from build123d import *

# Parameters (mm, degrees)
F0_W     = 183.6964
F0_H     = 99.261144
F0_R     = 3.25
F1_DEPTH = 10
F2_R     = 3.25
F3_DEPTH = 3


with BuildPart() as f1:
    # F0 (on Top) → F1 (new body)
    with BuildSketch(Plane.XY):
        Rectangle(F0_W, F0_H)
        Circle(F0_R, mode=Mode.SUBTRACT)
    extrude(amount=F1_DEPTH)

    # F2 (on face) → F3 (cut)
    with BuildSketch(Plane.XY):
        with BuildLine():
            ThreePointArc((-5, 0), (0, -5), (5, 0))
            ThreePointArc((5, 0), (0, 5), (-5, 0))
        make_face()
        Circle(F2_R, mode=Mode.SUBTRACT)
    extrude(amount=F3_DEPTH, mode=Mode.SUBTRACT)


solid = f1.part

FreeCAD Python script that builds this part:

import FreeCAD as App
import Part
import Sketcher
from FreeCAD import Vector
Q = App.Units.Quantity


def add_polygon(sketch, points):
    """Adds a closed chain of lines whose ends are joined by coincident constraints."""
    first, n = sketch.GeometryCount, len(points)
    for a, b in zip(points, points[1:] + points[:1]):
        sketch.addGeometry(Part.LineSegment(App.Vector(*a, 0), App.Vector(*b, 0)), False)
    for i in range(n):
        sketch.addConstraint(Sketcher.Constraint("Coincident", first + i, 2, first + (i + 1) % n, 1))

doc = App.newDocument("Part")
body = doc.addObject("PartDesign::Body", "Body")

sketch1 = body.newObject("Sketcher::SketchObject", "Sketch")
sketch1.AttachmentSupport = (doc.getObject("XY_Plane"), [""])
sketch1.MapMode = "FlatFace"
add_polygon(sketch1, [(-91.8482, 49.630572), (-91.8482, -49.630572), (91.8482, -49.630572), (91.8482, 49.630572)])
sketch1.addGeometry(Part.Circle(Vector(0, 0, 0), Vector(0, 0, 1), 3.25), False)
sketch1.addConstraint([
    Sketcher.Constraint("Vertical", 0),
    Sketcher.Constraint("Horizontal", 1),
    Sketcher.Constraint("Vertical", 2),
    Sketcher.Constraint("Horizontal", 3),
    Sketcher.Constraint("Coincident", 4, 3, -1, 1),
    Sketcher.Constraint("Symmetric", 0, 2, 2, 2, -1, 1),
    Sketcher.Constraint("Diameter", 4, Q("6.5 mm")),
    Sketcher.Constraint("DistanceX", 1, 1, 1, 2, Q("183.6964 mm")),
    Sketcher.Constraint("DistanceY", 0, 2, 0, 1, Q("99.261144 mm")),
])
pad1 = body.newObject("PartDesign::Pad", "Pad")
pad1.Profile = sketch1
pad1.Length = 10

sketch2 = body.newObject("Sketcher::SketchObject", "Sketch001")
sketch2.AttachmentSupport = (doc.getObject("XY_Plane"), [""])
sketch2.MapMode = "FlatFace"
sketch2.addGeometry([
    Part.Circle(Vector(0, 0, 0), Vector(0, 0, 1), 5),
    Part.Circle(Vector(0, 0, 0), Vector(0, 0, 1), 3.25),
], False)
sketch2.addConstraint([
    Sketcher.Constraint("Coincident", 0, 3, -1, 1),
    Sketcher.Constraint("Coincident", 1, 3, -1, 1),
    Sketcher.Constraint("Diameter", 0, Q("10 mm")),
    Sketcher.Constraint("Diameter", 1, Q("6.5 mm")),
])
pocket1 = body.newObject("PartDesign::Pocket", "Pocket")
pocket1.Profile = sketch2
pocket1.Length = 3
pocket1.Reversed = True

doc.recompute()
